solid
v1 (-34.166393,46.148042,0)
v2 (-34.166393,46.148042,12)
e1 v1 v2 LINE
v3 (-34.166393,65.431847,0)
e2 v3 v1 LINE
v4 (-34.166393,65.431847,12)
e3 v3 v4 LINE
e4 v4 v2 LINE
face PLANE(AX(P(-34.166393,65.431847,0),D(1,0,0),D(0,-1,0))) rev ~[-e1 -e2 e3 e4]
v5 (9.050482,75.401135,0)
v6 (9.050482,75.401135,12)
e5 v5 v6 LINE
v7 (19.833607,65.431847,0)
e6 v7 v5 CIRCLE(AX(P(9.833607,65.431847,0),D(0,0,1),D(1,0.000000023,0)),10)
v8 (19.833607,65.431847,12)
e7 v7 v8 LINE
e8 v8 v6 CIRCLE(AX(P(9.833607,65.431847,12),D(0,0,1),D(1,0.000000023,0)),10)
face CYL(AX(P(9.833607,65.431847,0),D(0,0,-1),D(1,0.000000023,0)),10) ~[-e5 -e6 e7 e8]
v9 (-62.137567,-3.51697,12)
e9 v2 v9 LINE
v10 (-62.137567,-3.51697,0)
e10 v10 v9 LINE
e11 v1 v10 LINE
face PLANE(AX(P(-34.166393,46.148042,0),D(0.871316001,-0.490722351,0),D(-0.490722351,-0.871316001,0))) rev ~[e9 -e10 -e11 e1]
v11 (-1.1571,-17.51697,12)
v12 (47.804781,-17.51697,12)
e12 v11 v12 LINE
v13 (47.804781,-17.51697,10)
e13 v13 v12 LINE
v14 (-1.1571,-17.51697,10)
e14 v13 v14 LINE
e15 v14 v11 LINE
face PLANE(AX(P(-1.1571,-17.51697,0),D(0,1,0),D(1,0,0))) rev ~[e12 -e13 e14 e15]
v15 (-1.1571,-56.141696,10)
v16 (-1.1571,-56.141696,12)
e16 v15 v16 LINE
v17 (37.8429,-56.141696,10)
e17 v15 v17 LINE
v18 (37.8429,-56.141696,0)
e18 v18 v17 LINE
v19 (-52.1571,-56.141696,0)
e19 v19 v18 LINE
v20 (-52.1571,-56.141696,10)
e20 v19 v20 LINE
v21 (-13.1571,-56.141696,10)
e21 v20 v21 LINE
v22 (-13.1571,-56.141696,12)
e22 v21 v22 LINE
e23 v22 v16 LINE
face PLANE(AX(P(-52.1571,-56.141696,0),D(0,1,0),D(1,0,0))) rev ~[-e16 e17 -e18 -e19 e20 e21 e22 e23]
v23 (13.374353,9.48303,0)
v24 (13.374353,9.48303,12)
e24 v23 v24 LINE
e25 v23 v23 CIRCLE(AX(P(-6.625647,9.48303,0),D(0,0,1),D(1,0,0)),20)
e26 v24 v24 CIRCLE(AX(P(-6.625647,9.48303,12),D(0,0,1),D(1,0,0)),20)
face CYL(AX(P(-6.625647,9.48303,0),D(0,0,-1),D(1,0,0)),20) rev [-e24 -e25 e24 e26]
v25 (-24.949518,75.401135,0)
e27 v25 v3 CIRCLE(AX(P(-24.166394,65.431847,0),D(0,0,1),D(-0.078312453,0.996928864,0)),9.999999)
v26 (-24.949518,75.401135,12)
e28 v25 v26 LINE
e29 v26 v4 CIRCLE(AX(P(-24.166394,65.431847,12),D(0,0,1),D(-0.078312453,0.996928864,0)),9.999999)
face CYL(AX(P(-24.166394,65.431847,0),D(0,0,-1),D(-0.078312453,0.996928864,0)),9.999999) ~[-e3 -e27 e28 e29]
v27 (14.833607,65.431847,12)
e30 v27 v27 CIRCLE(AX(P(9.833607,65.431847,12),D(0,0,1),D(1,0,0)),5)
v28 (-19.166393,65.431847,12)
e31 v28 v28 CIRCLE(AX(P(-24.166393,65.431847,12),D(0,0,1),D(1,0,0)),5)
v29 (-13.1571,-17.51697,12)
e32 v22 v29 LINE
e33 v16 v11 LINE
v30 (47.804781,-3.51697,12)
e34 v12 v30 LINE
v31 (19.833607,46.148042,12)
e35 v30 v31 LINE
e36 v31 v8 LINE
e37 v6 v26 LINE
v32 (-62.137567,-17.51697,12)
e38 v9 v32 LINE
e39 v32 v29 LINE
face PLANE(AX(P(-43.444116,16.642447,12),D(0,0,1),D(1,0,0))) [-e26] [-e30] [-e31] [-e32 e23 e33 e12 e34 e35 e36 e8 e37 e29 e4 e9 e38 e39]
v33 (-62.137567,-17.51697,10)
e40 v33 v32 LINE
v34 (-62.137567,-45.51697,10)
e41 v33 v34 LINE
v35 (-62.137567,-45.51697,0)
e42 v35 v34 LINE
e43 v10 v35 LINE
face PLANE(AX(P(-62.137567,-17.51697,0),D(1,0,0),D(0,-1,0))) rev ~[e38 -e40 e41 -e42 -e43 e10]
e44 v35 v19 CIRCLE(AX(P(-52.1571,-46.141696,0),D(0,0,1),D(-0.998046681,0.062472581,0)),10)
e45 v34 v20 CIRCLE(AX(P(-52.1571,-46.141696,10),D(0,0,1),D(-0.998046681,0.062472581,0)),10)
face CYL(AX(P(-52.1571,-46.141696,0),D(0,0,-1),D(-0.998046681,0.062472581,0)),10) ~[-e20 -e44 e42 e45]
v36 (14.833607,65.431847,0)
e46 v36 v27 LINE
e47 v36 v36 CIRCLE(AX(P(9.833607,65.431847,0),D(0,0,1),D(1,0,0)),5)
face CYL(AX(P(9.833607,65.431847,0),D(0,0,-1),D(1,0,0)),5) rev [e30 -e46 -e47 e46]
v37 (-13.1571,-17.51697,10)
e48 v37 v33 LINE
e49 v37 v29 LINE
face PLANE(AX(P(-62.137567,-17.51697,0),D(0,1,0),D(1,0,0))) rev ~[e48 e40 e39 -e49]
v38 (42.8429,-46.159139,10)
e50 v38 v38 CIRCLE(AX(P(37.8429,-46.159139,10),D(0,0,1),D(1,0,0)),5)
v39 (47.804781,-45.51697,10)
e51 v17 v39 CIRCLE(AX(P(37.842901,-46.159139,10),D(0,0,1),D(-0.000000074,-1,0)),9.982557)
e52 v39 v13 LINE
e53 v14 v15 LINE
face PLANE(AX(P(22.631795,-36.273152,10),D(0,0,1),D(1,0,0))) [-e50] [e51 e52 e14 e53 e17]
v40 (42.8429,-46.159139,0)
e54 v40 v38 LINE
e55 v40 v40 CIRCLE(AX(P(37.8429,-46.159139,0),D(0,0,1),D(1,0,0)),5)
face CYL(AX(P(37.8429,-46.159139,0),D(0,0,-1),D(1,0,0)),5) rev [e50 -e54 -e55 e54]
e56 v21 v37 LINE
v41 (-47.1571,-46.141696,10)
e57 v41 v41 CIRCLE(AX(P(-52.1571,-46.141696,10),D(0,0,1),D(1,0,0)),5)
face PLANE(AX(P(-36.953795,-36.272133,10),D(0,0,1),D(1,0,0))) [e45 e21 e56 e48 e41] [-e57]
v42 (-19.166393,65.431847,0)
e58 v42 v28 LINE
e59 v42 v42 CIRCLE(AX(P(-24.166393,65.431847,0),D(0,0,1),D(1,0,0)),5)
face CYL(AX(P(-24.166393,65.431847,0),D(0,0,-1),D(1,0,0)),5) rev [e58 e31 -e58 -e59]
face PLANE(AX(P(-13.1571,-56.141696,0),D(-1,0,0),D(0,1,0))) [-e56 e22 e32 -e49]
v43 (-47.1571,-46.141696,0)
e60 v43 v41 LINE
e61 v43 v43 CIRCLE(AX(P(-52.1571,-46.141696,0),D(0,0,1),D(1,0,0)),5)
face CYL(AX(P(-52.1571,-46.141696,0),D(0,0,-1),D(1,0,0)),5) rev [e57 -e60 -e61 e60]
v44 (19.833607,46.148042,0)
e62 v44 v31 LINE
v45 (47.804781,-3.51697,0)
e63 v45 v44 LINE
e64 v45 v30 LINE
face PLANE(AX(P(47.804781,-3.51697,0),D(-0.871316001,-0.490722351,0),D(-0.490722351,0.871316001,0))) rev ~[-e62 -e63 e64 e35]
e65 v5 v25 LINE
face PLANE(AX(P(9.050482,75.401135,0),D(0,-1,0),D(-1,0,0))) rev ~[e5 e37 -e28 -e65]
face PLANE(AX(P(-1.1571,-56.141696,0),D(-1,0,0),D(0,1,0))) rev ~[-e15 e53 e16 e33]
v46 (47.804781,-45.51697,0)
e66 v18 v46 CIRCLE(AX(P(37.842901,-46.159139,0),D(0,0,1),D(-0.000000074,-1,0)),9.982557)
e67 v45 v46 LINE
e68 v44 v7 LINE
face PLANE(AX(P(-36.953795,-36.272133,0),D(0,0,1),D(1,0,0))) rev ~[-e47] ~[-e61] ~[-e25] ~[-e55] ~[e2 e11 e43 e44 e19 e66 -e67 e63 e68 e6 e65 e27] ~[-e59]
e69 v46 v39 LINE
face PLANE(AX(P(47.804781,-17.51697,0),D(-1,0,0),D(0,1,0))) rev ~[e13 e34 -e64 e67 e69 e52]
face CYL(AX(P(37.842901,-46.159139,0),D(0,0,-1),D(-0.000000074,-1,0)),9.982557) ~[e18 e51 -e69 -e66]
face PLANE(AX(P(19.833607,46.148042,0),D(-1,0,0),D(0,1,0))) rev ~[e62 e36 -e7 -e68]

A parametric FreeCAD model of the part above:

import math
import FreeCAD as App
import Part
import Sketcher
from FreeCAD import Vector

doc = App.newDocument("Part")
body = doc.addObject("PartDesign::Body", "Body")

sketch1 = body.newObject("Sketcher::SketchObject", "Sketch")
sketch1.AttachmentSupport = (doc.getObject("XY_Plane"), [""])
sketch1.MapMode = "FlatFace"
sketch1.addGeometry([
    Part.LineSegment(Vector(-34, 46, 0), Vector(-62, -4, 0)),
    Part.LineSegment(Vector(-62, -4, 0), Vector(-62, -18, 0)),
    Part.LineSegment(Vector(-62, -18, 0), Vector(-13, -18, 0)),
    Part.LineSegment(Vector(-13, -18, 0), Vector(-13, -56, 0)),
    Part.LineSegment(Vector(-13, -56, 0), Vector(-1, -56, 0)),
    Part.LineSegment(Vector(-1, -56, 0), Vector(-1, -18, 0)),
    Part.LineSegment(Vector(-1, -18, 0), Vector(48, -18, 0)),
    Part.LineSegment(Vector(48, -18, 0), Vector(48, -4, 0)),
    Part.LineSegment(Vector(48, -4, 0), Vector(20, 46, 0)),
    Part.LineSegment(Vector(20, 46, 0), Vector(20, 65, 0)),
    Part.ArcOfCircle(Part.Circle(Vector(10, 65, 0), Vector(0, 0, 1), 10), math.radians(0), math.radians(94)),
    Part.LineSegment(Vector(9, 75, 0), Vector(-25, 75, 0)),
    Part.ArcOfCircle(Part.Circle(Vector(-24, 65, 0), Vector(0, 0, 1), 10), math.radians(94), math.radians(180)),
    Part.LineSegment(Vector(-34, 65, 0), Vector(-34, 46, 0)),
    Part.Circle(Vector(-7, 9, 0), Vector(0, 0, 1), 20),
    Part.Circle(Vector(-24, 65, 0), Vector(0, 0, 1), 5),
    Part.Circle(Vector(10, 65, 0), Vector(0, 0, 1), 5),
], False)
sketch1.addConstraint([
    Sketcher.Constraint("Coincident", 0, 2, 1, 1),
    Sketcher.Constraint("Coincident", 1, 2, 2, 1),
    Sketcher.Constraint("Coincident", 2, 2, 3, 1),
    Sketcher.Constraint("Coincident", 3, 2, 4, 1),
    Sketcher.Constraint("Coincident", 4, 2, 5, 1),
    Sketcher.Constraint("Coincident", 5, 2, 6, 1),
    Sketcher.Constraint("Coincident", 6, 2, 7, 1),
    Sketcher.Constraint("Coincident", 7, 2, 8, 1),
    Sketcher.Constraint("Coincident", 8, 2, 9, 1),
    Sketcher.Constraint("Tangent", 9, 2, 10, 1),
    Sketcher.Constraint("Coincident", 10, 2, 11, 1),
    Sketcher.Constraint("Coincident", 11, 2, 12, 1),
    Sketcher.Constraint("Tangent", 12, 2, 13, 1),
    Sketcher.Constraint("Coincident", 13, 2, 0, 1),
    Sketcher.Constraint("Vertical", 1),
    Sketcher.Constraint("Horizontal", 2),
    Sketcher.Constraint("Vertical", 3),
    Sketcher.Constraint("Horizontal", 4),
    Sketcher.Constraint("Vertical", 5),
    Sketcher.Constraint("Horizontal", 6),
    Sketcher.Constraint("Vertical", 7),
    Sketcher.Constraint("Vertical", 9),
    Sketcher.Constraint("Horizontal", 11),
    Sketcher.Constraint("Vertical", 13),
    Sketcher.Constraint("Coincident", 15, 3, 12, 3),
    Sketcher.Constraint("Coincident", 16, 3, 10, 3),
    Sketcher.Constraint("Equal", 10, 12),
    Sketcher.Constraint("Equal", 15, 16),
    Sketcher.Constraint("Horizontal", 10, 3, 12, 3),
    Sketcher.Constraint("Horizontal", 2, 2, 5, 2),
    Sketcher.Constraint("Horizontal", 0, 2, 7, 2),
    Sketcher.Constraint("Horizontal", 8, 2, 13, 2),
    Sketcher.Constraint("Equal", 0, 8),
    Sketcher.Constraint("Diameter", 14, 40.0),
    Sketcher.Constraint("Diameter", 15, 10.0),
    Sketcher.Constraint("Radius", 10, 10.0),
    Sketcher.Constraint("DistanceX", 4, 1, 4, 2, 12.0),
    Sketcher.Constraint("DistanceX", 11, 2, 11, 1, 34.0),
    Sketcher.Constraint("DistanceY", 1, 2, 1, 1, 14.0),
    Sketcher.Constraint("Distance", 0, 57.0),
    Sketcher.Constraint("DistanceY", 0, 2, 14, 3, 13.0),
    Sketcher.Constraint("DistanceX", 6, 1, 6, 2, 48.961881),
    Sketcher.Constraint("DistanceX", 2, 2, -1, 1, 13.1571),
    Sketcher.Constraint("DistanceX", 2, 1, 2, 2, 48.980467),
    Sketcher.Constraint("DistanceY", 3, 2, 3, 1, 38.624726),
    Sketcher.Constraint("DistanceY", 9, 1, 9, 2, 19.283805),
    Sketcher.Constraint("DistanceY", -1, 1, 14, 3, 9.48303),
    Sketcher.Constraint("DistanceX", -1, 1, 10, 2, 9.050482),
    Sketcher.Constraint("DistanceX", 0, 2, 14, 3, 55.51192),
])
pad1 = body.newObject("PartDesign::Pad", "Pad")
pad1.Profile = sketch1
pad1.Length = 12

sketch2 = body.newObject("Sketcher::SketchObject", "Sketch001")
sketch2.AttachmentSupport = (doc.getObject("XY_Plane"), [""])
sketch2.MapMode = "FlatFace"
sketch2.addGeometry([
    Part.ArcOfCircle(Part.Circle(Vector(-52, -46, 0), Vector(0, 0, 1), 10), math.radians(176), math.radians(270)),
    Part.LineSegment(Vector(-52, -56, 0), Vector(-13, -56, 0)),
    Part.LineSegment(Vector(-13, -56, 0), Vector(-13, -18, 0)),
    Part.LineSegment(Vector(-13, -18, 0), Vector(-62, -18, 0)),
    Part.LineSegment(Vector(-62, -18, 0), Vector(-62, -46, 0)),
    Part.Circle(Vector(-52, -46, 0), Vector(0, 0, 1), 5),
    Part.LineSegment(Vector(-1, -18, 0), Vector(-1, -56, 0)),
    Part.LineSegment(Vector(-1, -56, 0), Vector(38, -56, 0)),
    Part.ArcOfCircle(Part.Circle(Vector(38, -46, 0), Vector(0, 0, 1), 10), math.radians(-90), math.radians(4)),
    Part.LineSegment(Vector(48, -46, 0), Vector(48, -18, 0)),
    Part.LineSegment(Vector(48, -18, 0), Vector(-1, -18, 0)),
    Part.Circle(Vector(38, -46, 0), Vector(0, 0, 1), 5),
], False)
sketch2.addConstraint([
    Sketcher.Constraint("Tangent", 0, 2, 1, 1),
    Sketcher.Constraint("Coincident", 1, 2, 2, 1),
    Sketcher.Constraint("Coincident", 2, 2, 3, 1),
    Sketcher.Constraint("Coincident", 3, 2, 4, 1),
    Sketcher.Constraint("Coincident", 4, 2, 0, 1),
    Sketcher.Constraint("Coincident", 6, 2, 7, 1),
    Sketcher.Constraint("Tangent", 7, 2, 8, 1),
    Sketcher.Constraint("Coincident", 8, 2, 9, 1),
    Sketcher.Constraint("Coincident", 9, 2, 10, 1),
    Sketcher.Constraint("Coincident", 10, 2, 6, 1),
    Sketcher.Constraint("Horizontal", 1),
    Sketcher.Constraint("Vertical", 2),
    Sketcher.Constraint("Horizontal", 3),
    Sketcher.Constraint("Vertical", 4),
    Sketcher.Constraint("Vertical", 6),
    Sketcher.Constraint("Horizontal", 7),
    Sketcher.Constraint("Vertical", 9),
    Sketcher.Constraint("Horizontal", 10),
    Sketcher.Constraint("Coincident", 5, 3, 0, 3),
    Sketcher.Constraint("Coincident", 11, 3, 8, 3),
    Sketcher.Constraint("Equal", 5, 11),
    Sketcher.Constraint("Horizontal", 1, 2, 6, 2),
    Sketcher.Constraint("Horizontal", 4, 2, 8, 2),
    Sketcher.Constraint("Horizontal", 3, 2, 9, 2),
    Sketcher.Constraint("Equal", 1, 7),
    Sketcher.Constraint("Diameter", 5, 10.0),
    Sketcher.Constraint("Radius", 0, 10.0),
    Sketcher.Constraint("DistanceX", 1, 1, 1, 2, 39.0),
    Sketcher.Constraint("DistanceY", 4, 2, 4, 1, 28.0),
    Sketcher.Constraint("DistanceX", 5, 3, 8, 3, 90.000001),
    Sketcher.Constraint("Radius", 8, 9.982557),
    Sketcher.Constraint("DistanceX", 10, 2, 10, 1, 48.961881),
    Sketcher.Constraint("DistanceX", 0, 3, -1, 1, 52.1571),
    Sketcher.Constraint("DistanceY", 8, 3, -1, 1, 46.159139),
])
pad2 = body.newObject("PartDesign::Pad", "Pad001")
pad2.Profile = sketch2
pad2.Length = 10

doc.recompute()
